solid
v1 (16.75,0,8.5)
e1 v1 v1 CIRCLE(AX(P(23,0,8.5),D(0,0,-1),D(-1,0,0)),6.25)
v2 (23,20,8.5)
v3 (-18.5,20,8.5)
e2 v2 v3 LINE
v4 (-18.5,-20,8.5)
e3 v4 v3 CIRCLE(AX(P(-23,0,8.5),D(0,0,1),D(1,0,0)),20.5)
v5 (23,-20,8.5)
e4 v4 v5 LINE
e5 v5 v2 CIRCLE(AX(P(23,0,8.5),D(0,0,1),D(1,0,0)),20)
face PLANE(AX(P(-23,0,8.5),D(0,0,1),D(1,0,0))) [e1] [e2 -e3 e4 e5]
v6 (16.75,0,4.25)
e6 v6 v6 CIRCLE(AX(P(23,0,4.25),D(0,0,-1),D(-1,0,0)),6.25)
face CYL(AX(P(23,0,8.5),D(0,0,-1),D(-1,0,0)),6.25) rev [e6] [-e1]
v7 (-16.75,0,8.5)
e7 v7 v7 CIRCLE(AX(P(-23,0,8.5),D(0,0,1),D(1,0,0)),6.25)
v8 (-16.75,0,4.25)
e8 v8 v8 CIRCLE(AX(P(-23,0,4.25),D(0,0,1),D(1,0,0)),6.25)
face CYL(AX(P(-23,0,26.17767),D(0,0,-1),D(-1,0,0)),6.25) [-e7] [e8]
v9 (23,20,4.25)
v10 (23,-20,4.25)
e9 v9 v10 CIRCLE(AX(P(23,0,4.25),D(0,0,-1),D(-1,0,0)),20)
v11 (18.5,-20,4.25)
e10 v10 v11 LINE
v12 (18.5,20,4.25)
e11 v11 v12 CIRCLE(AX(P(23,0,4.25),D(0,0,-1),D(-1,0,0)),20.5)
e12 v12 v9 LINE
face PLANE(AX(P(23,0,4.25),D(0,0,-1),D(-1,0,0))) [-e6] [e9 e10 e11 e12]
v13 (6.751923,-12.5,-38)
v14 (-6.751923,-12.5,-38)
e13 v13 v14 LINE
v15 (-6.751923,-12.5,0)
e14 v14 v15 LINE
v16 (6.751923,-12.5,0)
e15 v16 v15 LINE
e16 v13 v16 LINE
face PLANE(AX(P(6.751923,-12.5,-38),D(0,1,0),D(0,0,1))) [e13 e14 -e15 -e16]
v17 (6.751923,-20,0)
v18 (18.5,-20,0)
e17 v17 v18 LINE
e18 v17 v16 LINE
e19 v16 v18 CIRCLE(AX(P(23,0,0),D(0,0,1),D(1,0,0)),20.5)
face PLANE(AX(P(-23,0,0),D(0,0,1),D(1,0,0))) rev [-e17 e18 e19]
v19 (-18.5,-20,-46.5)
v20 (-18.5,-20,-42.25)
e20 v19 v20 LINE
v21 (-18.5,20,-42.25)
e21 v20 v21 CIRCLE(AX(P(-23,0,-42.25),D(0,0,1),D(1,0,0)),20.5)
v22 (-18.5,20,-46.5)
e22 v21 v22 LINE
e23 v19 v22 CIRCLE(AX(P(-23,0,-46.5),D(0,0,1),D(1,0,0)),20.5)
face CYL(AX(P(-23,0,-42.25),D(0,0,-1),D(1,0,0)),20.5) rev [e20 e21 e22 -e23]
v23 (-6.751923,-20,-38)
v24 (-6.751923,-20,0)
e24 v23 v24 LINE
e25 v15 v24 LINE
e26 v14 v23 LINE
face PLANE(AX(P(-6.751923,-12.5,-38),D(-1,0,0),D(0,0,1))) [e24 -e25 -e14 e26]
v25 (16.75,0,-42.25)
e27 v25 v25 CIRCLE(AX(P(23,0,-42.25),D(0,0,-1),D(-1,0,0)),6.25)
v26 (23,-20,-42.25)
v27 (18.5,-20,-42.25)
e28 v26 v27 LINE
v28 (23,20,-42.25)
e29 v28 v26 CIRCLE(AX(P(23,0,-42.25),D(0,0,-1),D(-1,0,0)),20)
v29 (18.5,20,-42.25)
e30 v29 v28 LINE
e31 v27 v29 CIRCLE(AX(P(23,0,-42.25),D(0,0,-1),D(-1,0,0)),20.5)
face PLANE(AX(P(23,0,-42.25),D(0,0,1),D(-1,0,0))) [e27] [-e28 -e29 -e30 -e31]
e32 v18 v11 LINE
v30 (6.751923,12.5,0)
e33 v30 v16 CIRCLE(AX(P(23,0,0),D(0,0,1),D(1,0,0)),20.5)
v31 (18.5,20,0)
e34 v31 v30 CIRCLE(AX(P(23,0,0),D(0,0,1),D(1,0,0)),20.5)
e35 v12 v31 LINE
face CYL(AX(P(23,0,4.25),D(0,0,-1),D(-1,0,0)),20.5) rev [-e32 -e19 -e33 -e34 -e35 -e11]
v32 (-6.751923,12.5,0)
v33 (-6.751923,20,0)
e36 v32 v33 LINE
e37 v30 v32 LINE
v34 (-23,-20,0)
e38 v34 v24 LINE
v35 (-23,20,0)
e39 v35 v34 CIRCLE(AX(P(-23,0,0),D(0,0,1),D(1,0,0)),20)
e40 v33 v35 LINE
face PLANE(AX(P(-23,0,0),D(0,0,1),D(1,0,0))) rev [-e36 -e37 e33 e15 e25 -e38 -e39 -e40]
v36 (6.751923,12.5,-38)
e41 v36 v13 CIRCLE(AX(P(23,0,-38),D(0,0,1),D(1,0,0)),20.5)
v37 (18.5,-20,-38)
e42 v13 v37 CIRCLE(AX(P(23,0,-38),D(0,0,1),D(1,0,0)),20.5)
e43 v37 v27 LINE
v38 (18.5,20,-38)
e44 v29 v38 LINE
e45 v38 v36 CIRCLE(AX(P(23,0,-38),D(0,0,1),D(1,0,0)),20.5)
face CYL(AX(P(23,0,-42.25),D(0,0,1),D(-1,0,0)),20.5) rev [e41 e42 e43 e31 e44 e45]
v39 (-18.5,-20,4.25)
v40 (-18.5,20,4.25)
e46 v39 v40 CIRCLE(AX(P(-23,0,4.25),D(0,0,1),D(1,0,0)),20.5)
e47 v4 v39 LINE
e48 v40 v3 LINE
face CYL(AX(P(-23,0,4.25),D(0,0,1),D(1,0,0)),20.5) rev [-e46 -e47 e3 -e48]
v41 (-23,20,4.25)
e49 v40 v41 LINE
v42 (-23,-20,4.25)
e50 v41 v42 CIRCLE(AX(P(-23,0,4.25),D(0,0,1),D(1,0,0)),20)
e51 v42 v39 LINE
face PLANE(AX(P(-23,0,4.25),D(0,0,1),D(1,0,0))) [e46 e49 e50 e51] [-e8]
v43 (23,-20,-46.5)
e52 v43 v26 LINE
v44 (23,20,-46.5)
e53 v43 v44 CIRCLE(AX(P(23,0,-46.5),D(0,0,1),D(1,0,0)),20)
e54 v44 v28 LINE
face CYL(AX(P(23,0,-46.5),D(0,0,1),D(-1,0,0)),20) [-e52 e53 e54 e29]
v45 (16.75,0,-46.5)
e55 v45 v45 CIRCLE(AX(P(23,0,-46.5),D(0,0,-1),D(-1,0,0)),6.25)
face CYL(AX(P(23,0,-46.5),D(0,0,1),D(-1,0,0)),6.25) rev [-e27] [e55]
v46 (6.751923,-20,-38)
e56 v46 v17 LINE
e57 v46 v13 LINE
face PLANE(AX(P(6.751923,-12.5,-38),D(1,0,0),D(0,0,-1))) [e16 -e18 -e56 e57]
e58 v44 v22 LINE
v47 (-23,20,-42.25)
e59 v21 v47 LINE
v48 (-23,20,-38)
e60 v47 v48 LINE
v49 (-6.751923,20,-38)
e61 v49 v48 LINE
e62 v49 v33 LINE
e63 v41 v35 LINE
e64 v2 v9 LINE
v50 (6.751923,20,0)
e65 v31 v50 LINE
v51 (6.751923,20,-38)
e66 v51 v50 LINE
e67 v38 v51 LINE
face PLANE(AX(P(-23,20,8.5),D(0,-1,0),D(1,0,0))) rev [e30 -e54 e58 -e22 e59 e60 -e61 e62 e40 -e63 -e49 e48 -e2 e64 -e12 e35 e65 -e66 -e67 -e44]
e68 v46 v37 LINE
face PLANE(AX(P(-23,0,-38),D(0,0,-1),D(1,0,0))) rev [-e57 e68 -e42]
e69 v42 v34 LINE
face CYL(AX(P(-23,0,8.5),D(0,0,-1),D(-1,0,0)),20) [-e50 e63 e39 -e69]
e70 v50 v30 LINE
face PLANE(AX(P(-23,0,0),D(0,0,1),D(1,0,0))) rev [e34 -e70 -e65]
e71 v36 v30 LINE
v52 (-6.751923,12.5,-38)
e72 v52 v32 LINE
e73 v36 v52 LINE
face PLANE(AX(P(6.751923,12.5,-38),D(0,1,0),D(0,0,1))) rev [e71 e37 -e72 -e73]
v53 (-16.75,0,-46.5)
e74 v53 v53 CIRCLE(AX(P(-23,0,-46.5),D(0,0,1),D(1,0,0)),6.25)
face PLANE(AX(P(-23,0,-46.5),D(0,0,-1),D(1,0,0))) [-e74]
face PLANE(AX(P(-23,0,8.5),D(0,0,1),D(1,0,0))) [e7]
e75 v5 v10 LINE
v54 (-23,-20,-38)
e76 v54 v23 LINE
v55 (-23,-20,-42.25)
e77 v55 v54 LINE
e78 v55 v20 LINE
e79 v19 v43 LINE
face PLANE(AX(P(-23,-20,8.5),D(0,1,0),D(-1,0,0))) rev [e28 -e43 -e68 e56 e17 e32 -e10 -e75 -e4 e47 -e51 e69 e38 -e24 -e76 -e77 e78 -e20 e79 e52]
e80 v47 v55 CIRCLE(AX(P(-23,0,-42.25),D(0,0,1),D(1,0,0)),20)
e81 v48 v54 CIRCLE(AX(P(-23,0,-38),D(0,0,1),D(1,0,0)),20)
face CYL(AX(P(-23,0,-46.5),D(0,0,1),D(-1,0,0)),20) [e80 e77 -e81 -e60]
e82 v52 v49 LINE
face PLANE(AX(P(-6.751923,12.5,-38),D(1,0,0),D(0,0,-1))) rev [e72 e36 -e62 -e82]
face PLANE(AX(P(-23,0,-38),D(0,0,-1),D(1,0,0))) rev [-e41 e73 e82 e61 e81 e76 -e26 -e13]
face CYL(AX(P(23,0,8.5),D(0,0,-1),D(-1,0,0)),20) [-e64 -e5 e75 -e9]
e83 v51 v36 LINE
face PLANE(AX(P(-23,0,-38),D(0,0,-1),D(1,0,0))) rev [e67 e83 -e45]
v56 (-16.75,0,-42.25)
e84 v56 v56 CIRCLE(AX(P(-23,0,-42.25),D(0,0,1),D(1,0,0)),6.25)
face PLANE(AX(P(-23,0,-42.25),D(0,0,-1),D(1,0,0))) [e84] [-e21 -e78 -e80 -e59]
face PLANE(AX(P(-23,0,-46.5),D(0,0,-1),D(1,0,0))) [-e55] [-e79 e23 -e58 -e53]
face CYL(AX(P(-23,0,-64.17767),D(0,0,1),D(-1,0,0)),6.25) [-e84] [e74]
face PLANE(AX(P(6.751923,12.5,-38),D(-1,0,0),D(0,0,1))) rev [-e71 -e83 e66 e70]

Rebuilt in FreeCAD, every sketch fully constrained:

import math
import FreeCAD as App
import Part
import Sketcher

V = App.Vector
Q = App.Units.Quantity


def add_polygon(sketch, points):
    """Adds a closed chain of lines whose ends are joined by coincident constraints."""
    first, n = sketch.GeometryCount, len(points)
    for a, b in zip(points, points[1:] + points[:1]):
        sketch.addGeometry(Part.LineSegment(App.Vector(*a, 0), App.Vector(*b, 0)), False)
    for i in range(n):
        sketch.addConstraint(Sketcher.Constraint("Coincident", first + i, 2, first + (i + 1) % n, 1))

doc = App.newDocument("Part")
body = doc.addObject("PartDesign::Body", "Body")

# Sketch on XY plane
sketch1 = body.newObject("Sketcher::SketchObject", "Sketch")
sketch1.AttachmentSupport = (doc.getObject("XY_Plane"), [""])
sketch1.MapMode = "FlatFace"
sketch1.addGeometry([
    Part.LineSegment(V(23, 20, 0), V(-23, 20, 0)),
    Part.ArcOfCircle(Part.Circle(V(-23, 0, 0), V(0, 0, 1), 20), math.radians(90), math.radians(270)),
    Part.LineSegment(V(-23, -20, 0), V(23, -20, 0)),
    Part.ArcOfCircle(Part.Circle(V(23, 0, 0), V(0, 0, 1), 20), math.radians(-90), math.radians(90)),
], False)
sketch1.addConstraint([
    Sketcher.Constraint("Tangent", 0, 2, 1, 1),
    Sketcher.Constraint("Tangent", 1, 2, 2, 1),
    Sketcher.Constraint("Tangent", 2, 2, 3, 1),
    Sketcher.Constraint("Tangent", 3, 2, 0, 1),
    Sketcher.Constraint("Horizontal", 0),
    Sketcher.Constraint("Horizontal", 2),
    Sketcher.Constraint("Symmetric", 1, 3, 3, 3, -1, 1),
    Sketcher.Constraint("Radius", 1, Q("20 mm")),
    Sketcher.Constraint("DistanceX", 0, 2, 0, 1, Q("46 mm")),
])
pad1 = body.newObject("PartDesign::Pad", "Pad")
pad1.Profile = sketch1
pad1.Length = 8.5

# Sketch on XY plane
sketch2 = body.newObject("Sketcher::SketchObject", "Sketch001")
sketch2.AttachmentSupport = (doc.getObject("XY_Plane"), [""])
sketch2.MapMode = "FlatFace"
sketch2.addGeometry(Part.Circle(V(23, 0, 0), V(0, 0, 1), 20), False)
sketch2.addConstraint([
    Sketcher.Constraint("PointOnObject", 0, 3, -1),
    Sketcher.Constraint("Diameter", 0, Q("41 mm")),
    Sketcher.Constraint("DistanceX", -1, 1, 0, 3, Q("23 mm")),
])
pocket1 = body.newObject("PartDesign::Pocket", "Pocket")
pocket1.Profile = sketch2
pocket1.Length = 4.25
pocket1.Reversed = True

# Sketch on XY plane
sketch3 = body.newObject("Sketcher::SketchObject", "Sketch002")
sketch3.AttachmentSupport = (doc.getObject("XY_Plane"), [""])
sketch3.MapMode = "FlatFace"
sketch3.AttachmentOffset = App.Placement(V(0, 0, 8.5), App.Rotation())
sketch3.addGeometry(Part.Circle(V(-23, 0, 0), V(0, 0, 1), 20), False)
sketch3.addConstraint([
    Sketcher.Constraint("PointOnObject", 0, 3, -1),
    Sketcher.Constraint("Diameter", 0, Q("41 mm")),
    Sketcher.Constraint("DistanceX", 0, 3, -1, 1, Q("23 mm")),
])
pocket2 = body.newObject("PartDesign::Pocket", "Pocket001")
pocket2.Profile = sketch3
pocket2.Length = 4.25

# Sketch on XY plane
sketch4 = body.newObject("Sketcher::SketchObject", "Sketch003")
sketch4.AttachmentSupport = (doc.getObject("XY_Plane"), [""])
sketch4.MapMode = "FlatFace"
sketch4.AttachmentOffset = App.Placement(V(0, 0, 4.25), App.Rotation())
sketch4.addGeometry(Part.Circle(V(23, 0, 0), V(0, 0, 1), 6), False)
sketch4.addConstraint([
    Sketcher.Constraint("PointOnObject", 0, 3, -1),
    Sketcher.Constraint("Diameter", 0, Q("12.5 mm")),
    Sketcher.Constraint("DistanceX", -1, 1, 0, 3, Q("23 mm")),
])
pocket3 = body.newObject("PartDesign::Pocket", "Pocket002")
pocket3.Profile = sketch4
pocket3.Type = "ThroughAll"
pocket3.Reversed = True

# Sketch on XY plane
sketch5 = body.newObject("Sketcher::SketchObject", "Sketch004")
sketch5.AttachmentSupport = (doc.getObject("XY_Plane"), [""])
sketch5.MapMode = "FlatFace"
sketch5.AttachmentOffset = App.Placement(V(0, 0, 4.25), App.Rotation())
sketch5.addGeometry(Part.Circle(V(-23, 0, 0), V(0, 0, 1), 6), False)
sketch5.addConstraint([
    Sketcher.Constraint("PointOnObject", 0, 3, -1),
    Sketcher.Constraint("Diameter", 0, Q("12.5 mm")),
    Sketcher.Constraint("DistanceX", 0, 3, -1, 1, Q("23 mm")),
])
pad2 = body.newObject("PartDesign::Pad", "Pad001")
pad2.Profile = sketch5
pad2.Length = 4.25

# Sketch on XY plane
sketch6 = body.newObject("Sketcher::SketchObject", "Sketch005")
sketch6.AttachmentSupport = (doc.getObject("XY_Plane"), [""])
sketch6.MapMode = "FlatFace"
add_polygon(sketch6, [(7, 20), (7, 12), (-7, 12), (-7, 20)])  # lines 0-3
sketch6.addConstraint([
    Sketcher.Constraint("Vertical", 0),
    Sketcher.Constraint("Horizontal", 1),
    Sketcher.Constraint("Vertical", 2),
    Sketcher.Constraint("Horizontal", 3),
    Sketcher.Constraint("DistanceY", 0, 2, 0, 1, Q("7.5 mm")),
    Sketcher.Constraint("DistanceY", -1, 1, 2, 2, Q("20 mm")),
    Sketcher.Constraint("DistanceX", 1, 2, 1, 1, Q("13.503846 mm")),
    Sketcher.Constraint("DistanceX", -1, 1, 0, 2, Q("6.751923 mm")),
])
pad3 = body.newObject("PartDesign::Pad", "Pad002")
pad3.Profile = sketch6
pad3.Length = 38
pad3.Reversed = True
doc.recompute()

mirrored = body.newObject("PartDesign::Mirrored", "Mirrored")
mirrored.Originals = [pad3]
mirrored.MirrorPlane = (doc.getObject("XZ_Plane"), [""])
body.Tip = mirrored
body2 = doc.addObject("PartDesign::Body", "Body001")
doc.recompute()

body2.BaseFeature = body
doc.recompute()

mirroring = doc.addObject("Part::Mirroring", "Mirroring")
mirroring.Source = body
mirroring.Base = V(0, 0, -19)
mirroring.Normal = V(0, 0, 1)
body3 = doc.addObject("PartDesign::Body", "Body002")
body3.BaseFeature = mirroring
boolean = body2.newObject("PartDesign::Boolean", "Boolean")
boolean.Type = "Fuse"
boolean.addObjects([body3])
doc.recompute()
mirroring.Visibility = False

doc.recompute()
